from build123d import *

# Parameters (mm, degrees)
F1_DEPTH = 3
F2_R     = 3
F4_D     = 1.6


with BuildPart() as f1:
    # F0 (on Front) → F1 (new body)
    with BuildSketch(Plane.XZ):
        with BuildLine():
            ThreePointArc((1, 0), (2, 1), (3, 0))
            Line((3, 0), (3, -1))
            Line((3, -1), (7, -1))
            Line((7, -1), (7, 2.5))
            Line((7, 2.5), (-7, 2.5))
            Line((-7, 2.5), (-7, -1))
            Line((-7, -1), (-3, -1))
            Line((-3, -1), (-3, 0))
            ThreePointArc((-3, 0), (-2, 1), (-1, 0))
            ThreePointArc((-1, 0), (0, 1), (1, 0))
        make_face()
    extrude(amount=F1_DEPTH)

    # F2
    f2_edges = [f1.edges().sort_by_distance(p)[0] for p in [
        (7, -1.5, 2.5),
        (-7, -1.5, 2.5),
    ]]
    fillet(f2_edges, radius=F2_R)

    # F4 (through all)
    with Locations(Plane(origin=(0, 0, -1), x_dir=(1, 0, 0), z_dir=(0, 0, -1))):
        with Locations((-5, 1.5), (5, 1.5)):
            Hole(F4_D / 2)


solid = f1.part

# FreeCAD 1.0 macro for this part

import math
import FreeCAD as App
import Part
import Sketcher


def edges_at(feature, points):
    """Names of the edges that pass closest to the given points."""
    edges = feature.Shape.Edges
    near = lambda p: min(range(len(edges)), key=lambda i: edges[i].distToShape(Part.Vertex(*p))[0])
    return sorted({f"Edge{near(p) + 1}" for p in points})

doc = App.newDocument("Part")
body = doc.addObject("PartDesign::Body", "Body")

# Sketch on XZ plane
sketch1 = body.newObject("Sketcher::SketchObject", "Sketch")
sketch1.AttachmentSupport = (doc.getObject("XZ_Plane"), [""])
sketch1.MapMode = "FlatFace"
sketch1.addGeometry([
    Part.ArcOfCircle(Part.Circle(App.Vector(2, 0, 0), App.Vector(0, 0, 1), 1), math.radians(0), math.radians(180)),  # 0
    Part.LineSegment(App.Vector(3, 0, 0), App.Vector(3, -1, 0)),  # 1
    Part.LineSegment(App.Vector(3, -1, 0), App.Vector(7, -1, 0)),  # 2
    Part.LineSegment(App.Vector(7, -1, 0), App.Vector(7, 2.5, 0)),  # 3
    Part.LineSegment(App.Vector(7, 2.5, 0), App.Vector(-7, 2.5, 0)),  # 4
    Part.LineSegment(App.Vector(-7, 2.5, 0), App.Vector(-7, -1, 0)),  # 5
    Part.LineSegment(App.Vector(-7, -1, 0), App.Vector(-3, -1, 0)),  # 6
    Part.LineSegment(App.Vector(-3, -1, 0), App.Vector(-3, 0, 0)),  # 7
    Part.ArcOfCircle(Part.Circle(App.Vector(-2, 0, 0), App.Vector(0, 0, 1), 1), math.radians(0), math.radians(180)),  # 8
    Part.ArcOfCircle(Part.Circle(App.Vector(0, 0, 0), App.Vector(0, 0, 1), 1), math.radians(0), math.radians(180)),  # 9
], False)
sketch1.addConstraint([
    Sketcher.Constraint("Tangent", 0, 1, 1, 1),
    Sketcher.Constraint("Coincident", 1, 2, 2, 1),
    Sketcher.Constraint("Coincident", 2, 2, 3, 1),
    Sketcher.Constraint("Coincident", 3, 2, 4, 1),
    Sketcher.Constraint("Coincident", 4, 2, 5, 1),
    Sketcher.Constraint("Coincident", 5, 2, 6, 1),
    Sketcher.Constraint("Coincident", 6, 2, 7, 1),
    Sketcher.Constraint("Tangent", 7, 2, 8, 2),
    Sketcher.Constraint("Tangent", 8, 1, 9, 2),
    Sketcher.Constraint("Tangent", 9, 1, 0, 2),
    Sketcher.Constraint("Vertical", 1),
    Sketcher.Constraint("Horizontal", 2),
    Sketcher.Constraint("Vertical", 3),
    Sketcher.Constraint("Horizontal", 4),
    Sketcher.Constraint("Vertical", 5),
    Sketcher.Constraint("Horizontal", 6),
    Sketcher.Constraint("Vertical", 7),
    Sketcher.Constraint("Coincident", 9, 3, -1, 1),
    Sketcher.Constraint("Equal", 0, 8),
    Sketcher.Constraint("Equal", 8, 9),
    Sketcher.Constraint("Symmetric", 2, 2, 5, 2, -2),
    Sketcher.Constraint("PointOnObject", 0, 3, -1),
    Sketcher.Constraint("PointOnObject", 8, 3, -1),
    Sketcher.Constraint("Radius", 0, 1.0),
    Sketcher.Constraint("DistanceX", 2, 1, 2, 2, 4.0),
    Sketcher.Constraint("DistanceY", 1, 2, 1, 1, 1.0),
    Sketcher.Constraint("DistanceY", 3, 1, 3, 2, 3.5),
])
pad1 = body.newObject("PartDesign::Pad", "Pad")
pad1.Profile = sketch1
pad1.Length = 3
doc.recompute()

fillet = body.newObject("PartDesign::Fillet", "Fillet")
fillet.Base = (pad1, edges_at(pad1, [(7, -1.5, 2.5), (-7, -1.5, 2.5)]))
fillet.Radius = 3

# Sketch on XY plane
sketch2 = body.newObject("Sketcher::SketchObject", "Sketch001")
sketch2.AttachmentSupport = (doc.getObject("XY_Plane"), [""])
sketch2.MapMode = "FlatFace"
sketch2.AttachmentOffset = App.Placement(App.Vector(0, 0, -1), App.Rotation())
sketch2.addGeometry([
    Part.Circle(App.Vector(-5, -1.5, 0), App.Vector(0, 0, 1), 0.8),
    Part.Circle(App.Vector(5, -1.5, 0), App.Vector(0, 0, 1), 0.8),
], False)
sketch2.addConstraint([
    Sketcher.Constraint("Equal", 0, 1),
    Sketcher.Constraint("Symmetric", 0, 3, 1, 3, -2),
    Sketcher.Constraint("Diameter", 0, 1.6),
    Sketcher.Constraint("DistanceX", 0, 3, -1, 1, 5.0),
    Sketcher.Constraint("DistanceY", 0, 3, -1, 1, 1.5),
])
doc.recompute()
hole = body.newObject("PartDesign::Hole", "Hole")
hole.Profile = sketch2
hole.ThreadType = "None"
hole.Diameter = 1.6
hole.DepthType = "ThroughAll"
hole.Reversed = True

doc.recompute()
